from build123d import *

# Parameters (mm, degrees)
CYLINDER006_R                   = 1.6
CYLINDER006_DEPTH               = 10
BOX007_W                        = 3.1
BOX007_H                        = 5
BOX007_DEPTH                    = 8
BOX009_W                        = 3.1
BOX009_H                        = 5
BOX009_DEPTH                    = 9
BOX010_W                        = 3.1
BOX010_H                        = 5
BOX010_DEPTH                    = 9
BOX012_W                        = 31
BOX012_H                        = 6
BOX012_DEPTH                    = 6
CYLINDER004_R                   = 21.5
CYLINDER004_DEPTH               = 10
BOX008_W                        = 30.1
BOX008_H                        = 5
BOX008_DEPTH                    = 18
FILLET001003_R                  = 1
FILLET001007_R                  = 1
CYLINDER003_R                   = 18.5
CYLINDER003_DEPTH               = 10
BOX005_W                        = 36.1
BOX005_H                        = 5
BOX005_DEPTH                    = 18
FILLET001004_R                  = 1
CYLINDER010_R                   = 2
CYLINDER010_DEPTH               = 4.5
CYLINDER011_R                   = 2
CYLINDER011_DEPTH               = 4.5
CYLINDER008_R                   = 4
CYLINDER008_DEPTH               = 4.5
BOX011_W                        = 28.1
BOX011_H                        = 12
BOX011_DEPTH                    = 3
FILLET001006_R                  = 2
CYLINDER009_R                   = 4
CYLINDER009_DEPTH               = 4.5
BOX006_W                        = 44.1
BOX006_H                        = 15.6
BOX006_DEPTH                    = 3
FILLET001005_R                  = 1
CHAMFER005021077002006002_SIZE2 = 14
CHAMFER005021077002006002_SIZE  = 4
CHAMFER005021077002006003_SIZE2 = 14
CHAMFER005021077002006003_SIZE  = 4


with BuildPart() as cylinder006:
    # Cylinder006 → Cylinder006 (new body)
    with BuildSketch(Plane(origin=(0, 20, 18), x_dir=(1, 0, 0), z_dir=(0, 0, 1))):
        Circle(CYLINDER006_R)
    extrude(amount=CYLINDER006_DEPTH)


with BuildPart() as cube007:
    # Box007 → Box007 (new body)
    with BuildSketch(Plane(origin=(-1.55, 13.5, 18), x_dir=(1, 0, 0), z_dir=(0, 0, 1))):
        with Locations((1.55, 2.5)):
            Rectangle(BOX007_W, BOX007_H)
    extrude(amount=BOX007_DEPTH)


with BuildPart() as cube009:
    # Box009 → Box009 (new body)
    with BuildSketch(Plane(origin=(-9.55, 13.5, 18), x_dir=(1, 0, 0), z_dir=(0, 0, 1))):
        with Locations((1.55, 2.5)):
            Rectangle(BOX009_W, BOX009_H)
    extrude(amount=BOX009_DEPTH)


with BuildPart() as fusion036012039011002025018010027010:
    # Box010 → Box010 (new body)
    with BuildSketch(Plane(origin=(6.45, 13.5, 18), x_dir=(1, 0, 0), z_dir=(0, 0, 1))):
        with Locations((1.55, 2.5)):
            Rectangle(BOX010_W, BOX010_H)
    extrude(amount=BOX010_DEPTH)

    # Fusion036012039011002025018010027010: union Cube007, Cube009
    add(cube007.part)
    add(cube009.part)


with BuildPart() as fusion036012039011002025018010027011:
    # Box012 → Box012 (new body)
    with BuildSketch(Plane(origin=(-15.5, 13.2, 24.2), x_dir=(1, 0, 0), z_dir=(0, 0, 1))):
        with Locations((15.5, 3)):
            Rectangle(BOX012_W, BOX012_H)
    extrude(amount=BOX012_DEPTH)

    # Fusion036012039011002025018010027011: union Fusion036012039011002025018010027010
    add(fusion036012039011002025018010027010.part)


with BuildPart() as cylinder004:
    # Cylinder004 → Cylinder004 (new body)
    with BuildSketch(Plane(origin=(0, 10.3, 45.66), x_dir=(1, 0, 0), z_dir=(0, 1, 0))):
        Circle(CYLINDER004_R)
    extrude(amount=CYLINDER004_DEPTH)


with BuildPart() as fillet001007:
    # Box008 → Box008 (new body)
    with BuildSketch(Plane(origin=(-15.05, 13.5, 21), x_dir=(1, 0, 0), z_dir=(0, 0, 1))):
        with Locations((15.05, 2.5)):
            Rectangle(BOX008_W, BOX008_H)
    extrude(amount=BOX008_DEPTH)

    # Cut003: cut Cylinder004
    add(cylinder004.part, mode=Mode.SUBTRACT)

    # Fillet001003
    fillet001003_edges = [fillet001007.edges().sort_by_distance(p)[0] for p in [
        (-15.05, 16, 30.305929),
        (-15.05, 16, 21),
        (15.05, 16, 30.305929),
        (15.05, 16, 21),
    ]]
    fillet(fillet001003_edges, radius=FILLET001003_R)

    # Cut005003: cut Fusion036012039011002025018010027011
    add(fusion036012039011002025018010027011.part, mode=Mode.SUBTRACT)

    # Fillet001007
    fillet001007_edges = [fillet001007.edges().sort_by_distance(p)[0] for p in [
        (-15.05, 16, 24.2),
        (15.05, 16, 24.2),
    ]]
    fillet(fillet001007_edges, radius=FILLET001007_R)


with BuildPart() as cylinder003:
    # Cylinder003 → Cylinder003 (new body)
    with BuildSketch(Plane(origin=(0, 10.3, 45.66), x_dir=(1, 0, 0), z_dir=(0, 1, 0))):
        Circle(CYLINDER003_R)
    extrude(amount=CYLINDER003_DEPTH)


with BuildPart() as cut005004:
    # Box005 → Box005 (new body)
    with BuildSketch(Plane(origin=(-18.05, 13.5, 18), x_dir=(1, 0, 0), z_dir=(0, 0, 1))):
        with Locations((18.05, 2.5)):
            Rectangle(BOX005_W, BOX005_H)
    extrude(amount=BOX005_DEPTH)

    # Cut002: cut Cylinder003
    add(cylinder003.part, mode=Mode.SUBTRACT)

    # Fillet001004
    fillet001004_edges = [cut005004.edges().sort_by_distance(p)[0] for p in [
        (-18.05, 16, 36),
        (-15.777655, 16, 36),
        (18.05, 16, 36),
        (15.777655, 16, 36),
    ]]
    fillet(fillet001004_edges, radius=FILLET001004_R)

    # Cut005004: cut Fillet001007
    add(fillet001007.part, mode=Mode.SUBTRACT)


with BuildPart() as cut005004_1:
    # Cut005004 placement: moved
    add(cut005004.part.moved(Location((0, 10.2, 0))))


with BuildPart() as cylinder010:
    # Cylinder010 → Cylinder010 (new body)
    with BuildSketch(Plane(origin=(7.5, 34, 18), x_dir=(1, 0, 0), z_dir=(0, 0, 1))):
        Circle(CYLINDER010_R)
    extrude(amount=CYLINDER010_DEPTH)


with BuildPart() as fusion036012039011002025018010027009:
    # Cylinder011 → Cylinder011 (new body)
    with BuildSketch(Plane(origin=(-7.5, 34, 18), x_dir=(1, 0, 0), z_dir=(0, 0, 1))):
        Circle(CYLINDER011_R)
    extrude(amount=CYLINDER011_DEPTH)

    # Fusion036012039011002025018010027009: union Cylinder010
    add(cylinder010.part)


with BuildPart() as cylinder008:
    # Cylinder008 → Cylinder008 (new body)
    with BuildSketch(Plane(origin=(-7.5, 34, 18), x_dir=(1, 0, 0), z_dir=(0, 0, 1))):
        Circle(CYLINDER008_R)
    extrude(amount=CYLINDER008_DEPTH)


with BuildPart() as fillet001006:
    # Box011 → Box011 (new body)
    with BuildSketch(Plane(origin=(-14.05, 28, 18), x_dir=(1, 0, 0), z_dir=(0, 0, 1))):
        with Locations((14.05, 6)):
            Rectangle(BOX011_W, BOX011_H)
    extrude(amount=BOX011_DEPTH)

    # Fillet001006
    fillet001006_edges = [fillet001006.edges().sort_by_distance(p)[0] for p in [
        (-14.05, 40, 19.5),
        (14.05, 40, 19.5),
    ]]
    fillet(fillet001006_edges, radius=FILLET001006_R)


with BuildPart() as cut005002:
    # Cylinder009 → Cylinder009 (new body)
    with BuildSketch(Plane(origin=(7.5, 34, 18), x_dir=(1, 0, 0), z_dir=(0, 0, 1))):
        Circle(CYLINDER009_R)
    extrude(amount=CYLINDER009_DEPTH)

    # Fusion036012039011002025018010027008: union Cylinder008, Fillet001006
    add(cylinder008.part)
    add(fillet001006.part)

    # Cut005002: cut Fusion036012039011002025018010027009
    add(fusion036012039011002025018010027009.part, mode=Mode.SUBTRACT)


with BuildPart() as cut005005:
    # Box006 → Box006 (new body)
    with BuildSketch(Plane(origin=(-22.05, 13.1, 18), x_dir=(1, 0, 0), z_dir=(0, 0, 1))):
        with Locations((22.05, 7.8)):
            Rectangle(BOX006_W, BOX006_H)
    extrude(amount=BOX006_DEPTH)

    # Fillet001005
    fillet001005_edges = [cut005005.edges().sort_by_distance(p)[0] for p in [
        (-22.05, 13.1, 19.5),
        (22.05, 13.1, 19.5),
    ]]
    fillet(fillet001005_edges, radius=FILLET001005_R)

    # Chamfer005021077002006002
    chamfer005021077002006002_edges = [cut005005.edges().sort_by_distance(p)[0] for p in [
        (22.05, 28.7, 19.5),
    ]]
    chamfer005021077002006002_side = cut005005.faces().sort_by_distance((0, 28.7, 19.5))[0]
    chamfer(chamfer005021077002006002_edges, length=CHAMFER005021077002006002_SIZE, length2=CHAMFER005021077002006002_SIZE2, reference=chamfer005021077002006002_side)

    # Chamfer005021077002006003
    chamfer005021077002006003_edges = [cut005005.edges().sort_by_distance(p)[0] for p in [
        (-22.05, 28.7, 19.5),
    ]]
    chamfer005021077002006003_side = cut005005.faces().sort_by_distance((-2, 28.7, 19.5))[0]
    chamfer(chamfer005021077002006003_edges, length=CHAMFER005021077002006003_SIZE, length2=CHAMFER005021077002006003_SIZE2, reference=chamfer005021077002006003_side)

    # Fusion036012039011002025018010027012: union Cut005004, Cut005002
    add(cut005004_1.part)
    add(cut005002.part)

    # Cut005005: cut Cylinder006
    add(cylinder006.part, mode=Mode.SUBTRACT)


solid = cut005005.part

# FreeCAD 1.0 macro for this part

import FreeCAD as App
import Part
import Sketcher

V = App.Vector
Q = App.Units.Quantity


def edges_at(feature, points):
    """Names of the edges that pass closest to the given points."""
    edges = feature.Shape.Edges
    near = lambda p: min(range(len(edges)), key=lambda i: edges[i].distToShape(Part.Vertex(*p))[0])
    return sorted({f"Edge{near(p) + 1}" for p in points})


def add_polygon(sketch, points):
    """Adds a closed chain of lines whose ends are joined by coincident constraints."""
    first, n = sketch.GeometryCount, len(points)
    for a, b in zip(points, points[1:] + points[:1]):
        sketch.addGeometry(Part.LineSegment(App.Vector(*a, 0), App.Vector(*b, 0)), False)
    for i in range(n):
        sketch.addConstraint(Sketcher.Constraint("Coincident", first + i, 2, first + (i + 1) % n, 1))

doc = App.newDocument("Part")
body = doc.addObject("PartDesign::Body", "Body")

sketch1 = body.newObject("Sketcher::SketchObject", "Sketch")
sketch1.AttachmentSupport = (doc.getObject("XY_Plane"), [""])
sketch1.MapMode = "FlatFace"
sketch1.AttachmentOffset = App.Placement(V(0, 0, 18), App.Rotation())
sketch1.addGeometry(Part.Circle(V(0, 20, 0), V(0, 0, 1), 1.6), False)
sketch1.addConstraint([
    Sketcher.Constraint("PointOnObject", 0, 3, -2),
    Sketcher.Constraint("Diameter", 0, Q("3.2 mm")),
    Sketcher.Constraint("DistanceY", -1, 1, 0, 3, Q("20 mm")),
])
pad1 = body.newObject("PartDesign::Pad", "Pad")
pad1.Profile = sketch1
pad1.Length = 10
body2 = doc.addObject("PartDesign::Body", "Body001")

sketch2 = body2.newObject("Sketcher::SketchObject", "Sketch001")
sketch2.AttachmentSupport = (doc.getObject("XY_Plane001"), [""])
sketch2.MapMode = "FlatFace"
sketch2.AttachmentOffset = App.Placement(V(0, 0, 18), App.Rotation())
add_polygon(sketch2, [(-1.55, 18.5), (-1.55, 13.5), (1.55, 13.5), (1.55, 18.5)])
sketch2.addConstraint([
    Sketcher.Constraint("Vertical", 0),
    Sketcher.Constraint("Horizontal", 1),
    Sketcher.Constraint("Vertical", 2),
    Sketcher.Constraint("Horizontal", 3),
    Sketcher.Constraint("DistanceY", 0, 2, 0, 1, Q("5 mm")),
    Sketcher.Constraint("DistanceX", 1, 1, 1, 2, Q("3.1 mm")),
    Sketcher.Constraint("DistanceY", -1, 1, 0, 2, Q("13.5 mm")),
    Sketcher.Constraint("DistanceX", 0, 2, -1, 1, Q("1.55 mm")),
])
pad2 = body2.newObject("PartDesign::Pad", "Pad001")
pad2.Profile = sketch2
pad2.Length = 8
body3 = doc.addObject("PartDesign::Body", "Body002")

sketch3 = body3.newObject("Sketcher::SketchObject", "Sketch002")
sketch3.AttachmentSupport = (doc.getObject("XY_Plane002"), [""])
sketch3.MapMode = "FlatFace"
sketch3.AttachmentOffset = App.Placement(V(0, 0, 18), App.Rotation())
add_polygon(sketch3, [(-9.55, 18.5), (-9.55, 13.5), (-6.45, 13.5), (-6.45, 18.5)])
sketch3.addConstraint([
    Sketcher.Constraint("Vertical", 0),
    Sketcher.Constraint("Horizontal", 1),
    Sketcher.Constraint("Vertical", 2),
    Sketcher.Constraint("Horizontal", 3),
    Sketcher.Constraint("DistanceY", 0, 2, 0, 1, Q("5 mm")),
    Sketcher.Constraint("DistanceX", 1, 1, 1, 2, Q("3.1 mm")),
    Sketcher.Constraint("DistanceY", -1, 1, 0, 2, Q("13.5 mm")),
    Sketcher.Constraint("DistanceX", 0, 2, -1, 1, Q("9.55 mm")),
])
pad3 = body3.newObject("PartDesign::Pad", "Pad002")
pad3.Profile = sketch3
pad3.Length = 9
body4 = doc.addObject("PartDesign::Body", "Body003")
body4.AllowCompound = True

sketch4 = body4.newObject("Sketcher::SketchObject", "Sketch003")
sketch4.AttachmentSupport = (doc.getObject("XY_Plane003"), [""])
sketch4.MapMode = "FlatFace"
sketch4.AttachmentOffset = App.Placement(V(0, 0, 18), App.Rotation())
add_polygon(sketch4, [(6.45, 18.5), (6.45, 13.5), (9.55, 13.5), (9.55, 18.5)])
sketch4.addConstraint([
    Sketcher.Constraint("Vertical", 0),
    Sketcher.Constraint("Horizontal", 1),
    Sketcher.Constraint("Vertical", 2),
    Sketcher.Constraint("Horizontal", 3),
    Sketcher.Constraint("DistanceY", 0, 2, 0, 1, Q("5 mm")),
    Sketcher.Constraint("DistanceX", 1, 1, 1, 2, Q("3.1 mm")),
    Sketcher.Constraint("DistanceY", -1, 1, 0, 2, Q("13.5 mm")),
    Sketcher.Constraint("DistanceX", -1, 1, 0, 2, Q("6.45 mm")),
])
pad4 = body4.newObject("PartDesign::Pad", "Pad003")
pad4.Profile = sketch4
pad4.Length = 9
doc.recompute()

boolean = body4.newObject("PartDesign::Boolean", "Boolean")
boolean.Type = "Fuse"
boolean.addObjects([body2])
doc.recompute()

boolean2 = body4.newObject("PartDesign::Boolean", "Boolean001")
boolean2.Type = "Fuse"
boolean2.addObjects([body3])
body5 = doc.addObject("PartDesign::Body", "Body004")

sketch5 = body5.newObject("Sketcher::SketchObject", "Sketch004")
sketch5.AttachmentSupport = (doc.getObject("XY_Plane004"), [""])
sketch5.MapMode = "FlatFace"
sketch5.AttachmentOffset = App.Placement(V(0, 0, 24.2), App.Rotation())
add_polygon(sketch5, [(-15.5, 19.2), (-15.5, 13.2), (15.5, 13.2), (15.5, 19.2)])
sketch5.addConstraint([
    Sketcher.Constraint("Vertical", 0),
    Sketcher.Constraint("Horizontal", 1),
    Sketcher.Constraint("Vertical", 2),
    Sketcher.Constraint("Horizontal", 3),
    Sketcher.Constraint("DistanceX", 1, 1, 1, 2, Q("31 mm")),
    Sketcher.Constraint("DistanceY", 0, 2, 0, 1, Q("6 mm")),
    Sketcher.Constraint("DistanceX", 0, 2, -1, 1, Q("15.5 mm")),
    Sketcher.Constraint("DistanceY", -1, 1, 0, 2, Q("13.2 mm")),
])
pad5 = body5.newObject("PartDesign::Pad", "Pad004")
pad5.Profile = sketch5
pad5.Length = 6
doc.recompute()

boolean3 = body5.newObject("PartDesign::Boolean", "Boolean002")
boolean3.Type = "Fuse"
boolean3.addObjects([body4])
body6 = doc.addObject("PartDesign::Body", "Body005")

sketch6 = body6.newObject("Sketcher::SketchObject", "Sketch005")
sketch6.AttachmentSupport = (doc.getObject("XZ_Plane005"), [""])
sketch6.MapMode = "FlatFace"
sketch6.AttachmentOffset = App.Placement(V(0, 0, -10.3), App.Rotation())
sketch6.addGeometry(Part.Circle(V(0, 45.66, 0), V(0, 0, 1), 21.5), False)
sketch6.addConstraint([
    Sketcher.Constraint("PointOnObject", 0, 3, -2),
    Sketcher.Constraint("Diameter", 0, Q("43 mm")),
    Sketcher.Constraint("DistanceY", -1, 1, 0, 3, Q("45.66 mm")),
])
pad6 = body6.newObject("PartDesign::Pad", "Pad005")
pad6.Profile = sketch6
pad6.Length = 10
pad6.Reversed = True
body7 = doc.addObject("PartDesign::Body", "Body006")
body7.AllowCompound = True

sketch7 = body7.newObject("Sketcher::SketchObject", "Sketch006")
sketch7.AttachmentSupport = (doc.getObject("XY_Plane006"), [""])
sketch7.MapMode = "FlatFace"
sketch7.AttachmentOffset = App.Placement(V(0, 0, 21), App.Rotation())
add_polygon(sketch7, [(-15.05, 18.5), (-15.05, 13.5), (15.05, 13.5), (15.05, 18.5)])
sketch7.addConstraint([
    Sketcher.Constraint("Vertical", 0),
    Sketcher.Constraint("Horizontal", 1),
    Sketcher.Constraint("Vertical", 2),
    Sketcher.Constraint("Horizontal", 3),
    Sketcher.Constraint("DistanceY", 0, 2, 0, 1, Q("5 mm")),
    Sketcher.Constraint("DistanceX", 1, 1, 1, 2, Q("30.1 mm")),
    Sketcher.Constraint("DistanceY", -1, 1, 0, 2, Q("13.5 mm")),
    Sketcher.Constraint("DistanceX", 0, 2, -1, 1, Q("15.05 mm")),
])
pad7 = body7.newObject("PartDesign::Pad", "Pad006")
pad7.Profile = sketch7
pad7.Length = 18
doc.recompute()

boolean4 = body7.newObject("PartDesign::Boolean", "Boolean003")
boolean4.Type = "Cut"
boolean4.addObjects([body6])
doc.recompute()

fillet = body7.newObject("PartDesign::Fillet", "Fillet")
fillet.Base = (boolean4, edges_at(boolean4, [
    (-15.05, 16, 30.306),
    (-15.05, 16, 21),
    (15.05, 16, 30.306),
    (15.05, 16, 21),
]))
fillet.Radius = 1
doc.recompute()

boolean5 = body7.newObject("PartDesign::Boolean", "Boolean004")
boolean5.Type = "Cut"
boolean5.addObjects([body5])
doc.recompute()

fillet2 = body7.newObject("PartDesign::Fillet", "Fillet001")
fillet2.Base = (boolean5, edges_at(boolean5, [(-15.05, 16, 24.2), (15.05, 16, 24.2)]))
fillet2.Radius = 1
body8 = doc.addObject("PartDesign::Body", "Body007")

sketch8 = body8.newObject("Sketcher::SketchObject", "Sketch007")
sketch8.AttachmentSupport = (doc.getObject("XZ_Plane007"), [""])
sketch8.MapMode = "FlatFace"
sketch8.AttachmentOffset = App.Placement(V(0, 0, -10.3), App.Rotation())
sketch8.addGeometry(Part.Circle(V(0, 45.66, 0), V(0, 0, 1), 18.5), False)
sketch8.addConstraint([
    Sketcher.Constraint("PointOnObject", 0, 3, -2),
    Sketcher.Constraint("Diameter", 0, Q("37 mm")),
    Sketcher.Constraint("DistanceY", -1, 1, 0, 3, Q("45.66 mm")),
])
pad8 = body8.newObject("PartDesign::Pad", "Pad007")
pad8.Profile = sketch8
pad8.Length = 10
pad8.Reversed = True
body9 = doc.addObject("PartDesign::Body", "Body008")

sketch9 = body9.newObject("Sketcher::SketchObject", "Sketch008")
sketch9.AttachmentSupport = (doc.getObject("XY_Plane008"), [""])
sketch9.MapMode = "FlatFace"
sketch9.AttachmentOffset = App.Placement(V(0, 0, 18), App.Rotation())
add_polygon(sketch9, [(-18.05, 18.5), (-18.05, 13.5), (18.05, 13.5), (18.05, 18.5)])
sketch9.addConstraint([
    Sketcher.Constraint("Vertical", 0),
    Sketcher.Constraint("Horizontal", 1),
    Sketcher.Constraint("Vertical", 2),
    Sketcher.Constraint("Horizontal", 3),
    Sketcher.Constraint("DistanceY", 0, 2, 0, 1, Q("5 mm")),
    Sketcher.Constraint("DistanceX", 1, 1, 1, 2, Q("36.1 mm")),
    Sketcher.Constraint("DistanceY", -1, 1, 0, 2, Q("13.5 mm")),
    Sketcher.Constraint("DistanceX", 0, 2, -1, 1, Q("18.05 mm")),
])
pad9 = body9.newObject("PartDesign::Pad", "Pad008")
pad9.Profile = sketch9
pad9.Length = 18
doc.recompute()

boolean6 = body9.newObject("PartDesign::Boolean", "Boolean005")
boolean6.Type = "Cut"
boolean6.addObjects([body8])
doc.recompute()

fillet3 = body9.newObject("PartDesign::Fillet", "Fillet002")
fillet3.Base = (boolean6, edges_at(boolean6, [
    (-18.05, 16, 36),
    (-15.778, 16, 36),
    (18.05, 16, 36),
    (15.778, 16, 36),
]))
fillet3.Radius = 1
doc.recompute()

boolean7 = body9.newObject("PartDesign::Boolean", "Boolean006")
boolean7.Type = "Cut"
boolean7.addObjects([body7])
body10 = doc.addObject("PartDesign::Body", "Body009")
doc.recompute()

body9.Placement = App.Placement(V(0, 10.2, 0), App.Rotation(V(0, 0, 1), 0))
boolean8 = body10.newObject("PartDesign::Boolean", "Boolean007")
boolean8.Type = "Fuse"
boolean8.addObjects([body9])
body11 = doc.addObject("PartDesign::Body", "Body010")

sketch10 = body11.newObject("Sketcher::SketchObject", "Sketch009")
sketch10.AttachmentSupport = (doc.getObject("XY_Plane010"), [""])
sketch10.MapMode = "FlatFace"
sketch10.AttachmentOffset = App.Placement(V(0, 0, 18), App.Rotation())
sketch10.addGeometry(Part.Circle(V(7.5, 34, 0), V(0, 0, 1), 2), False)
sketch10.addConstraint([
    Sketcher.Constraint("Diameter", 0, Q("4 mm")),
    Sketcher.Constraint("DistanceY", -1, 1, 0, 3, Q("34 mm")),
    Sketcher.Constraint("DistanceX", -1, 1, 0, 3, Q("7.5 mm")),
])
pad10 = body11.newObject("PartDesign::Pad", "Pad009")
pad10.Profile = sketch10
pad10.Length = 4.5
body12 = doc.addObject("PartDesign::Body", "Body011")
body12.AllowCompound = True

sketch11 = body12.newObject("Sketcher::SketchObject", "Sketch010")
sketch11.AttachmentSupport = (doc.getObject("XY_Plane011"), [""])
sketch11.MapMode = "FlatFace"
sketch11.AttachmentOffset = App.Placement(V(0, 0, 18), App.Rotation())
sketch11.addGeometry(Part.Circle(V(-7.5, 34, 0), V(0, 0, 1), 2), False)
sketch11.addConstraint([
    Sketcher.Constraint("Diameter", 0, Q("4 mm")),
    Sketcher.Constraint("DistanceY", -1, 1, 0, 3, Q("34 mm")),
    Sketcher.Constraint("DistanceX", 0, 3, -1, 1, Q("7.5 mm")),
])
pad11 = body12.newObject("PartDesign::Pad", "Pad010")
pad11.Profile = sketch11
pad11.Length = 4.5
doc.recompute()

boolean9 = body12.newObject("PartDesign::Boolean", "Boolean008")
boolean9.Type = "Fuse"
boolean9.addObjects([body11])
body13 = doc.addObject("PartDesign::Body", "Body012")

sketch12 = body13.newObject("Sketcher::SketchObject", "Sketch011")
sketch12.AttachmentSupport = (doc.getObject("XY_Plane012"), [""])
sketch12.MapMode = "FlatFace"
sketch12.AttachmentOffset = App.Placement(V(0, 0, 18), App.Rotation())
sketch12.addGeometry(Part.Circle(V(-7.5, 34, 0), V(0, 0, 1), 4), False)
sketch12.addConstraint([
    Sketcher.Constraint("Diameter", 0, Q("8 mm")),
    Sketcher.Constraint("DistanceY", -1, 1, 0, 3, Q("34 mm")),
    Sketcher.Constraint("DistanceX", 0, 3, -1, 1, Q("7.5 mm")),
])
pad12 = body13.newObject("PartDesign::Pad", "Pad011")
pad12.Profile = sketch12
pad12.Length = 4.5
body14 = doc.addObject("PartDesign::Body", "Body013")

sketch13 = body14.newObject("Sketcher::SketchObject", "Sketch012")
sketch13.AttachmentSupport = (doc.getObject("XY_Plane013"), [""])
sketch13.MapMode = "FlatFace"
sketch13.AttachmentOffset = App.Placement(V(0, 0, 18), App.Rotation())
add_polygon(sketch13, [(-14.05, 40), (-14.05, 28), (14.05, 28), (14.05, 40)])
sketch13.addConstraint([
    Sketcher.Constraint("Vertical", 0),
    Sketcher.Constraint("Horizontal", 1),
    Sketcher.Constraint("Vertical", 2),
    Sketcher.Constraint("Horizontal", 3),
    Sketcher.Constraint("DistanceY", 0, 2, 0, 1, Q("12 mm")),
    Sketcher.Constraint("DistanceX", 1, 1, 1, 2, Q("28.1 mm")),
    Sketcher.Constraint("DistanceY", -1, 1, 0, 2, Q("28 mm")),
    Sketcher.Constraint("DistanceX", 0, 2, -1, 1, Q("14.05 mm")),
])
pad13 = body14.newObject("PartDesign::Pad", "Pad012")
pad13.Profile = sketch13
pad13.Length = 3
doc.recompute()

fillet4 = body14.newObject("PartDesign::Fillet", "Fillet003")
fillet4.Base = (pad13, edges_at(pad13, [(-14.05, 40, 19.5), (14.05, 40, 19.5)]))
fillet4.Radius = 2
body15 = doc.addObject("PartDesign::Body", "Body014")
body15.AllowCompound = True

sketch14 = body15.newObject("Sketcher::SketchObject", "Sketch013")
sketch14.AttachmentSupport = (doc.getObject("XY_Plane014"), [""])
sketch14.MapMode = "FlatFace"
sketch14.AttachmentOffset = App.Placement(V(0, 0, 18), App.Rotation())
sketch14.addGeometry(Part.Circle(V(7.5, 34, 0), V(0, 0, 1), 4), False)
sketch14.addConstraint([
    Sketcher.Constraint("Diameter", 0, Q("8 mm")),
    Sketcher.Constraint("DistanceY", -1, 1, 0, 3, Q("34 mm")),
    Sketcher.Constraint("DistanceX", -1, 1, 0, 3, Q("7.5 mm")),
])
pad14 = body15.newObject("PartDesign::Pad", "Pad013")
pad14.Profile = sketch14
pad14.Length = 4.5
doc.recompute()

boolean10 = body15.newObject("PartDesign::Boolean", "Boolean009")
boolean10.Type = "Fuse"
boolean10.addObjects([body13])
doc.recompute()

boolean11 = body15.newObject("PartDesign::Boolean", "Boolean010")
boolean11.Type = "Fuse"
boolean11.addObjects([body14])
doc.recompute()

boolean12 = body15.newObject("PartDesign::Boolean", "Boolean011")
boolean12.Type = "Cut"
boolean12.addObjects([body12])
body16 = doc.addObject("PartDesign::Body", "Body015")

sketch15 = body16.newObject("Sketcher::SketchObject", "Sketch014")
sketch15.AttachmentSupport = (doc.getObject("XY_Plane015"), [""])
sketch15.MapMode = "FlatFace"
sketch15.AttachmentOffset = App.Placement(V(0, 0, 18), App.Rotation())
add_polygon(sketch15, [(-22.05, 28.7), (-22.05, 13.1), (22.05, 13.1), (22.05, 28.7)])
sketch15.addConstraint([
    Sketcher.Constraint("Vertical", 0),
    Sketcher.Constraint("Horizontal", 1),
    Sketcher.Constraint("Vertical", 2),
    Sketcher.Constraint("Horizontal", 3),
    Sketcher.Constraint("DistanceX", 1, 1, 1, 2, Q("44.1 mm")),
    Sketcher.Constraint("DistanceY", 0, 2, 0, 1, Q("15.6 mm")),
    Sketcher.Constraint("DistanceY", -1, 1, 0, 2, Q("13.1 mm")),
    Sketcher.Constraint("DistanceX", 0, 2, -1, 1, Q("22.05 mm")),
])
pad15 = body16.newObject("PartDesign::Pad", "Pad014")
pad15.Profile = sketch15
pad15.Length = 3
doc.recompute()

fillet5 = body16.newObject("PartDesign::Fillet", "Fillet004")
fillet5.Base = (pad15, edges_at(pad15, [(-22.05, 13.1, 19.5), (22.05, 13.1, 19.5)]))
fillet5.Radius = 1
doc.recompute()

chamfer = body16.newObject("PartDesign::Chamfer", "Chamfer")
chamfer.Base = (fillet5, edges_at(fillet5, [(22.05, 28.7, 19.5)]))
chamfer.ChamferType = "Two distances"
chamfer.Size = 4
chamfer.Size2 = 14
doc.recompute()

chamfer2 = body16.newObject("PartDesign::Chamfer", "Chamfer001")
chamfer2.Base = (chamfer, edges_at(chamfer, [(-22.05, 28.7, 19.5)]))
chamfer2.ChamferType = "Two distances"
chamfer2.Size = 4
chamfer2.Size2 = 14
doc.recompute()

boolean13 = body16.newObject("PartDesign::Boolean", "Boolean012")
boolean13.Type = "Fuse"
boolean13.addObjects([body10])
doc.recompute()

boolean14 = body16.newObject("PartDesign::Boolean", "Boolean013")
boolean14.Type = "Fuse"
boolean14.addObjects([body15])
doc.recompute()

boolean15 = body16.newObject("PartDesign::Boolean", "Boolean014")
boolean15.Type = "Cut"
boolean15.addObjects([body])

doc.recompute()
